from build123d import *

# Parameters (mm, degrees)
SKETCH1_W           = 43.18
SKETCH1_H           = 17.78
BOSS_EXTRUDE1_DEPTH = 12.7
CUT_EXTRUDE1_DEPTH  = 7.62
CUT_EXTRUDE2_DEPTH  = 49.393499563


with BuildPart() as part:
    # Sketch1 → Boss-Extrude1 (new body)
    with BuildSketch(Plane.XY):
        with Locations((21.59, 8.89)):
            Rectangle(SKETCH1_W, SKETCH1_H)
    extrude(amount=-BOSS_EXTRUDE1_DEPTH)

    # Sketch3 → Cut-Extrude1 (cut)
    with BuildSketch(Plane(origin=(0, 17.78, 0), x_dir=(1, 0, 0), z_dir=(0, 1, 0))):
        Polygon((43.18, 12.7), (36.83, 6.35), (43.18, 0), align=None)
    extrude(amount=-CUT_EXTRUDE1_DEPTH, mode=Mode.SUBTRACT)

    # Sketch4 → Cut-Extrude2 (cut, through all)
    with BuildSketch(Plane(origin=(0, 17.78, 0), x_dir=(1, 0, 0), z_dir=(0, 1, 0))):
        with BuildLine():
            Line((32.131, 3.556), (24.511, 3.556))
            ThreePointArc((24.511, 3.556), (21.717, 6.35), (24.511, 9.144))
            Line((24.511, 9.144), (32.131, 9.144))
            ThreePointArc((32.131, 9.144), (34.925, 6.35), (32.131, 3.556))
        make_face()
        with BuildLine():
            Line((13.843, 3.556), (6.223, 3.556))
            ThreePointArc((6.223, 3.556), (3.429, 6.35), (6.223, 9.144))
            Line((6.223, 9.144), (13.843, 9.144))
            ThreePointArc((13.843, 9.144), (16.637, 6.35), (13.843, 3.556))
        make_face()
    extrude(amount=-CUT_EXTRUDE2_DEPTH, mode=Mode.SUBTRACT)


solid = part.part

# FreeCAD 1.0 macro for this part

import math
import FreeCAD as App
import Part
import Sketcher
from FreeCAD import Vector
Q = App.Units.Quantity

doc = App.newDocument("Part")
params = doc.addObject("Spreadsheet::Sheet", "Params")
for row, (alias, value) in enumerate([
    ("sketch1_width", "1.7 in"),
    ("sketch1_height", "0.7 in"),
    ("pad1_length", "0.5 in"),
    ("sketch2_height", "0.5 in"),
    ("pocket1_length", "0.3 in"),
    ("sketch3_radius", "0.11 in"),
    ("sketch3_width", "0.3 in"),
], start=1):
    params.set(f"A{row}", alias)
    params.set(f"B{row}", "=" + value)
    params.setAlias(f"B{row}", alias)

body = doc.addObject("PartDesign::Body", "Body")

# Sketch on XY plane
sketch1 = doc.addObject("Sketcher::SketchObject", "Sketch")
body.addObject(sketch1)
sketch1.AttachmentSupport = (doc.XY_Plane, [""])
sketch1.MapMode = "FlatFace"
sketch1.addGeometry(Part.LineSegment(Vector(0, 18, 0), Vector(0, 0, 0)), False)
sketch1.addGeometry(Part.LineSegment(Vector(0, 0, 0), Vector(43, 0, 0)), False)
sketch1.addGeometry(Part.LineSegment(Vector(43, 0, 0), Vector(43, 18, 0)), False)
sketch1.addGeometry(Part.LineSegment(Vector(43, 18, 0), Vector(0, 18, 0)), False)
sketch1.addConstraint(Sketcher.Constraint("Coincident", 0, 2, 1, 1))
sketch1.addConstraint(Sketcher.Constraint("Coincident", 1, 2, 2, 1))
sketch1.addConstraint(Sketcher.Constraint("Coincident", 2, 2, 3, 1))
sketch1.addConstraint(Sketcher.Constraint("Coincident", 3, 2, 0, 1))
sketch1.addConstraint(Sketcher.Constraint("Vertical", 0))
sketch1.addConstraint(Sketcher.Constraint("Horizontal", 1))
sketch1.addConstraint(Sketcher.Constraint("Vertical", 2))
sketch1.addConstraint(Sketcher.Constraint("Horizontal", 3))
sketch1.addConstraint(Sketcher.Constraint("Coincident", 0, 2, -1, 1))
sketch1.addConstraint(Sketcher.Constraint("DistanceX", 1, 1, 1, 2, Q("1.7 in")))
sketch1.addConstraint(Sketcher.Constraint("DistanceY", 0, 2, 0, 1, Q("0.7 in")))
sketch1.setExpression("Constraints[9]", "Params.sketch1_width")
sketch1.setExpression("Constraints[10]", "Params.sketch1_height")
pad1 = doc.addObject("PartDesign::Pad", "Pad")
body.addObject(pad1)
pad1.Profile = sketch1
pad1.setExpression("Length", "Params.pad1_length")
pad1.Reversed = True

# Sketch on XZ plane
sketch2 = doc.addObject("Sketcher::SketchObject", "Sketch001")
body.addObject(sketch2)
sketch2.AttachmentSupport = (doc.XZ_Plane, [""])
sketch2.MapMode = "FlatFace"
sketch2.AttachmentOffset = App.Placement(Vector(0, 0, -0.7 * 25.4), App.Rotation())
sketch2.addGeometry(Part.LineSegment(Vector(43, -13, 0), Vector(37, -6, 0)), False)
sketch2.addGeometry(Part.LineSegment(Vector(37, -6, 0), Vector(43, 0, 0)), False)
sketch2.addGeometry(Part.LineSegment(Vector(43, 0, 0), Vector(43, -13, 0)), False)
sketch2.addConstraint(Sketcher.Constraint("Coincident", 0, 2, 1, 1))
sketch2.addConstraint(Sketcher.Constraint("Coincident", 1, 2, 2, 1))
sketch2.addConstraint(Sketcher.Constraint("Coincident", 2, 2, 0, 1))
sketch2.addConstraint(Sketcher.Constraint("Vertical", 2))
sketch2.addConstraint(Sketcher.Constraint("PointOnObject", 1, 2, -1))
sketch2.addConstraint(Sketcher.Constraint("Perpendicular", 0, 1))
sketch2.addConstraint(Sketcher.Constraint("Equal", 0, 1))
sketch2.addConstraint(Sketcher.Constraint("DistanceY", 2, 2, 2, 1, Q("0.5 in")))
sketch2.addConstraint(Sketcher.Constraint("DistanceX", -1, 1, 1, 2, Q("1.7 in")))
sketch2.setExpression("Constraints[7]", "Params.sketch2_height")
pocket1 = doc.addObject("PartDesign::Pocket", "Pocket")
body.addObject(pocket1)
pocket1.Profile = sketch2
pocket1.setExpression("Length", "Params.pocket1_length")
pocket1.Reversed = True

# Sketch on XZ plane
sketch3 = doc.addObject("Sketcher::SketchObject", "Sketch002")
body.addObject(sketch3)
sketch3.AttachmentSupport = (doc.XZ_Plane, [""])
sketch3.MapMode = "FlatFace"
sketch3.AttachmentOffset = App.Placement(Vector(0, 0, -0.7 * 25.4), App.Rotation())
sketch3.addGeometry(Part.LineSegment(Vector(24.5, -3.6, 0), Vector(32.1, -3.6, 0)), False)
sketch3.addGeometry(Part.ArcOfCircle(Part.Circle(Vector(32.1, -6.3, 0), Vector(0, 0, 1), 2.8), math.radians(-90), math.radians(90)), False)
sketch3.addGeometry(Part.LineSegment(Vector(32.1, -9.1, 0), Vector(24.5, -9.1, 0)), False)
sketch3.addGeometry(Part.ArcOfCircle(Part.Circle(Vector(24.5, -6.3, 0), Vector(0, 0, 1), 2.8), math.radians(90), math.radians(270)), False)
sketch3.addGeometry(Part.LineSegment(Vector(6.2, -3.6, 0), Vector(13.8, -3.6, 0)), False)
sketch3.addGeometry(Part.ArcOfCircle(Part.Circle(Vector(13.8, -6.3, 0), Vector(0, 0, 1), 2.8), math.radians(-90), math.radians(90)), False)
sketch3.addGeometry(Part.LineSegment(Vector(13.8, -9.1, 0), Vector(6.2, -9.1, 0)), False)
sketch3.addGeometry(Part.ArcOfCircle(Part.Circle(Vector(6.2, -6.3, 0), Vector(0, 0, 1), 2.8), math.radians(90), math.radians(270)), False)
sketch3.addConstraint(Sketcher.Constraint("Tangent", 0, 2, 1, 2))
sketch3.addConstraint(Sketcher.Constraint("Tangent", 1, 1, 2, 1))
sketch3.addConstraint(Sketcher.Constraint("Tangent", 2, 2, 3, 2))
sketch3.addConstraint(Sketcher.Constraint("Tangent", 3, 1, 0, 1))
sketch3.addConstraint(Sketcher.Constraint("Tangent", 4, 2, 5, 2))
sketch3.addConstraint(Sketcher.Constraint("Tangent", 5, 1, 6, 1))
sketch3.addConstraint(Sketcher.Constraint("Tangent", 6, 2, 7, 2))
sketch3.addConstraint(Sketcher.Constraint("Tangent", 7, 1, 4, 1))
sketch3.addConstraint(Sketcher.Constraint("Horizontal", 0))
sketch3.addConstraint(Sketcher.Constraint("Horizontal", 2))
sketch3.addConstraint(Sketcher.Constraint("Horizontal", 4))
sketch3.addConstraint(Sketcher.Constraint("Horizontal", 6))
sketch3.addConstraint(Sketcher.Constraint("Equal", 3, 5))
sketch3.addConstraint(Sketcher.Constraint("Horizontal", 3, 3, 5, 3))
sketch3.addConstraint(Sketcher.Constraint("Equal", 2, 4))
sketch3.addConstraint(Sketcher.Constraint("Radius", 1, Q("0.11 in")))
sketch3.addConstraint(Sketcher.Constraint("DistanceX", 0, 1, 0, 2, Q("0.3 in")))
sketch3.addConstraint(Sketcher.Constraint("DistanceY", 1, 3, -1, 1, Q("0.25 in")))
sketch3.addConstraint(Sketcher.Constraint("DistanceX", 5, 3, 3, 3, Q("0.42 in")))
sketch3.addConstraint(Sketcher.Constraint("DistanceX", -1, 1, 1, 3, Q("1.265 in")))
sketch3.setExpression("Constraints[15]", "Params.sketch3_radius")
sketch3.setExpression("Constraints[16]", "Params.sketch3_width")
pocket2 = doc.addObject("PartDesign::Pocket", "Pocket001")
body.addObject(pocket2)
pocket2.Profile = sketch3
pocket2.Type = "ThroughAll"
pocket2.Reversed = True

doc.recompute()
